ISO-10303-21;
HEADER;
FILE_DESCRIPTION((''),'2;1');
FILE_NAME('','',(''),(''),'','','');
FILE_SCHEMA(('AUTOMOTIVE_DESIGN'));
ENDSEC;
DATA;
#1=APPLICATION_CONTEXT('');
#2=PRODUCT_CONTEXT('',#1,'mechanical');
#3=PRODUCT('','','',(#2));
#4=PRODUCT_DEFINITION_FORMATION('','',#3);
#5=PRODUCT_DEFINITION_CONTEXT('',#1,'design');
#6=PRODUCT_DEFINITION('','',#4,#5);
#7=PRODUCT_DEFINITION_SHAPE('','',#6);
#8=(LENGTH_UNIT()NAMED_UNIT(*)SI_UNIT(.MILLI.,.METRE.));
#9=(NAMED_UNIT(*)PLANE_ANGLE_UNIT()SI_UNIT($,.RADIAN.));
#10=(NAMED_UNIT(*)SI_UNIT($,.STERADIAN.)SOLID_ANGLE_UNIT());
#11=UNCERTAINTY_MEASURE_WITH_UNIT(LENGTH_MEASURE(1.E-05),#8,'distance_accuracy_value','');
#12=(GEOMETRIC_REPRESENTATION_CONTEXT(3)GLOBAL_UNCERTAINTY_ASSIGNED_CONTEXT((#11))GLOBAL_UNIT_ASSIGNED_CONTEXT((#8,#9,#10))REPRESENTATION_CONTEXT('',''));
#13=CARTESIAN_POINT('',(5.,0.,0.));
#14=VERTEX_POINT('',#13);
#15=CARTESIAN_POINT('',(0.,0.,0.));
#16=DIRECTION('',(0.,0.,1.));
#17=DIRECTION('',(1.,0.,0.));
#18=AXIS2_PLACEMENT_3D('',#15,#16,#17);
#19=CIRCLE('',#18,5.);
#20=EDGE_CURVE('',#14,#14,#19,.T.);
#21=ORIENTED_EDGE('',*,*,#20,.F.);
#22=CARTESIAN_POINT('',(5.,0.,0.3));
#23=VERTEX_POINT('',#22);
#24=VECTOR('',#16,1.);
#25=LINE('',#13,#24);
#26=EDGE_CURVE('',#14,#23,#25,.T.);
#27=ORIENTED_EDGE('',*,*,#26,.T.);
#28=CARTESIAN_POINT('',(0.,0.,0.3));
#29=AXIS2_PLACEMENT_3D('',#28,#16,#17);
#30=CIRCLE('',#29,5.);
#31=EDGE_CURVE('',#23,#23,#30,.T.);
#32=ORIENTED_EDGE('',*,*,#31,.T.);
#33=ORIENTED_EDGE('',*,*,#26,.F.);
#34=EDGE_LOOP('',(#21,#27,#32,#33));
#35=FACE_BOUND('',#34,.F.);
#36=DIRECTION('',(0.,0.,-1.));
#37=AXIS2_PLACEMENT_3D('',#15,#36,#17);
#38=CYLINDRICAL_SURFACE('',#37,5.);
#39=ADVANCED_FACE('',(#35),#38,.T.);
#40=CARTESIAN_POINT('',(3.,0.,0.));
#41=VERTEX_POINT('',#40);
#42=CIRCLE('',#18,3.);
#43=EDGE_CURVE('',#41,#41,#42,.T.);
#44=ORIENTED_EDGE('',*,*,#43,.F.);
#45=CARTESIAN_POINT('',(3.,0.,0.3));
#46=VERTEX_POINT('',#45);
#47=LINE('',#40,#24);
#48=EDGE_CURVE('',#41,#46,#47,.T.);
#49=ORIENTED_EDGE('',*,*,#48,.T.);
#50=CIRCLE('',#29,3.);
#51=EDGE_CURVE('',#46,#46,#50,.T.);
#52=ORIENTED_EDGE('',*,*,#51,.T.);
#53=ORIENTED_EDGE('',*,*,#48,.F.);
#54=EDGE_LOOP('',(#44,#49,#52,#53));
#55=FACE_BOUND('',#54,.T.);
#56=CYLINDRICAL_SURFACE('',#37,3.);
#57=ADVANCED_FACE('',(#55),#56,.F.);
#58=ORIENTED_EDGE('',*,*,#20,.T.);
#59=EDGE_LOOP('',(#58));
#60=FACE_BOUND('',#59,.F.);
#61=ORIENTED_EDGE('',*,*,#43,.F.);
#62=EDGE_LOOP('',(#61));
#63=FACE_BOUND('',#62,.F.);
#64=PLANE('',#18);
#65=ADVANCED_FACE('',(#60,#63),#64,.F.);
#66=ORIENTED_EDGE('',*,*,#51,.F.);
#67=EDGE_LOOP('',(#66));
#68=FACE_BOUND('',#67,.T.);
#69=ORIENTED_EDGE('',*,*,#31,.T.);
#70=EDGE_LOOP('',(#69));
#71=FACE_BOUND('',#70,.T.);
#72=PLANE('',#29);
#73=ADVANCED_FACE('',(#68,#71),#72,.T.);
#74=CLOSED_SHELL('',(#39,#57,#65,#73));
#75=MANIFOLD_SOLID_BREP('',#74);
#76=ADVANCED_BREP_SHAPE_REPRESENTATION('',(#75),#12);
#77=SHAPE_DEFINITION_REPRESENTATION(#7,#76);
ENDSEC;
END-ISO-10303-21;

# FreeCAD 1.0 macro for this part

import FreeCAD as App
import Part
import Sketcher
from FreeCAD import Vector
Q = App.Units.Quantity

doc = App.newDocument("Part")
params = doc.addObject("Spreadsheet::Sheet", "Params")
for row, (alias, value) in enumerate([
    ("sketch1_diameter", "10 mm"),
    ("sketch1_diameter2", "6 mm"),
    ("pad1_length", "0.3 mm"),
], start=1):
    params.set(f"A{row}", alias)
    params.set(f"B{row}", "=" + value)
    params.setAlias(f"B{row}", alias)

body = doc.addObject("PartDesign::Body", "Body")

# Sketch on XY plane
sketch1 = doc.addObject("Sketcher::SketchObject", "Sketch")
body.addObject(sketch1)
sketch1.AttachmentSupport = (doc.XY_Plane, [""])
sketch1.MapMode = "FlatFace"
sketch1.addGeometry(Part.Circle(Vector(0, 0, 0), Vector(0, 0, 1), 5), False)
sketch1.addGeometry(Part.Circle(Vector(0, 0, 0), Vector(0, 0, 1), 3), False)
sketch1.addConstraint(Sketcher.Constraint("Coincident", 0, 3, -1, 1))
sketch1.addConstraint(Sketcher.Constraint("Coincident", 1, 3, -1, 1))
sketch1.addConstraint(Sketcher.Constraint("Diameter", 0, Q("10 mm")))
sketch1.addConstraint(Sketcher.Constraint("Diameter", 1, Q("6 mm")))
sketch1.setExpression("Constraints[2]", "Params.sketch1_diameter")
sketch1.setExpression("Constraints[3]", "Params.sketch1_diameter2")
pad1 = doc.addObject("PartDesign::Pad", "Pad")
body.addObject(pad1)
pad1.Profile = sketch1
pad1.setExpression("Length", "Params.pad1_length")

doc.recompute()
